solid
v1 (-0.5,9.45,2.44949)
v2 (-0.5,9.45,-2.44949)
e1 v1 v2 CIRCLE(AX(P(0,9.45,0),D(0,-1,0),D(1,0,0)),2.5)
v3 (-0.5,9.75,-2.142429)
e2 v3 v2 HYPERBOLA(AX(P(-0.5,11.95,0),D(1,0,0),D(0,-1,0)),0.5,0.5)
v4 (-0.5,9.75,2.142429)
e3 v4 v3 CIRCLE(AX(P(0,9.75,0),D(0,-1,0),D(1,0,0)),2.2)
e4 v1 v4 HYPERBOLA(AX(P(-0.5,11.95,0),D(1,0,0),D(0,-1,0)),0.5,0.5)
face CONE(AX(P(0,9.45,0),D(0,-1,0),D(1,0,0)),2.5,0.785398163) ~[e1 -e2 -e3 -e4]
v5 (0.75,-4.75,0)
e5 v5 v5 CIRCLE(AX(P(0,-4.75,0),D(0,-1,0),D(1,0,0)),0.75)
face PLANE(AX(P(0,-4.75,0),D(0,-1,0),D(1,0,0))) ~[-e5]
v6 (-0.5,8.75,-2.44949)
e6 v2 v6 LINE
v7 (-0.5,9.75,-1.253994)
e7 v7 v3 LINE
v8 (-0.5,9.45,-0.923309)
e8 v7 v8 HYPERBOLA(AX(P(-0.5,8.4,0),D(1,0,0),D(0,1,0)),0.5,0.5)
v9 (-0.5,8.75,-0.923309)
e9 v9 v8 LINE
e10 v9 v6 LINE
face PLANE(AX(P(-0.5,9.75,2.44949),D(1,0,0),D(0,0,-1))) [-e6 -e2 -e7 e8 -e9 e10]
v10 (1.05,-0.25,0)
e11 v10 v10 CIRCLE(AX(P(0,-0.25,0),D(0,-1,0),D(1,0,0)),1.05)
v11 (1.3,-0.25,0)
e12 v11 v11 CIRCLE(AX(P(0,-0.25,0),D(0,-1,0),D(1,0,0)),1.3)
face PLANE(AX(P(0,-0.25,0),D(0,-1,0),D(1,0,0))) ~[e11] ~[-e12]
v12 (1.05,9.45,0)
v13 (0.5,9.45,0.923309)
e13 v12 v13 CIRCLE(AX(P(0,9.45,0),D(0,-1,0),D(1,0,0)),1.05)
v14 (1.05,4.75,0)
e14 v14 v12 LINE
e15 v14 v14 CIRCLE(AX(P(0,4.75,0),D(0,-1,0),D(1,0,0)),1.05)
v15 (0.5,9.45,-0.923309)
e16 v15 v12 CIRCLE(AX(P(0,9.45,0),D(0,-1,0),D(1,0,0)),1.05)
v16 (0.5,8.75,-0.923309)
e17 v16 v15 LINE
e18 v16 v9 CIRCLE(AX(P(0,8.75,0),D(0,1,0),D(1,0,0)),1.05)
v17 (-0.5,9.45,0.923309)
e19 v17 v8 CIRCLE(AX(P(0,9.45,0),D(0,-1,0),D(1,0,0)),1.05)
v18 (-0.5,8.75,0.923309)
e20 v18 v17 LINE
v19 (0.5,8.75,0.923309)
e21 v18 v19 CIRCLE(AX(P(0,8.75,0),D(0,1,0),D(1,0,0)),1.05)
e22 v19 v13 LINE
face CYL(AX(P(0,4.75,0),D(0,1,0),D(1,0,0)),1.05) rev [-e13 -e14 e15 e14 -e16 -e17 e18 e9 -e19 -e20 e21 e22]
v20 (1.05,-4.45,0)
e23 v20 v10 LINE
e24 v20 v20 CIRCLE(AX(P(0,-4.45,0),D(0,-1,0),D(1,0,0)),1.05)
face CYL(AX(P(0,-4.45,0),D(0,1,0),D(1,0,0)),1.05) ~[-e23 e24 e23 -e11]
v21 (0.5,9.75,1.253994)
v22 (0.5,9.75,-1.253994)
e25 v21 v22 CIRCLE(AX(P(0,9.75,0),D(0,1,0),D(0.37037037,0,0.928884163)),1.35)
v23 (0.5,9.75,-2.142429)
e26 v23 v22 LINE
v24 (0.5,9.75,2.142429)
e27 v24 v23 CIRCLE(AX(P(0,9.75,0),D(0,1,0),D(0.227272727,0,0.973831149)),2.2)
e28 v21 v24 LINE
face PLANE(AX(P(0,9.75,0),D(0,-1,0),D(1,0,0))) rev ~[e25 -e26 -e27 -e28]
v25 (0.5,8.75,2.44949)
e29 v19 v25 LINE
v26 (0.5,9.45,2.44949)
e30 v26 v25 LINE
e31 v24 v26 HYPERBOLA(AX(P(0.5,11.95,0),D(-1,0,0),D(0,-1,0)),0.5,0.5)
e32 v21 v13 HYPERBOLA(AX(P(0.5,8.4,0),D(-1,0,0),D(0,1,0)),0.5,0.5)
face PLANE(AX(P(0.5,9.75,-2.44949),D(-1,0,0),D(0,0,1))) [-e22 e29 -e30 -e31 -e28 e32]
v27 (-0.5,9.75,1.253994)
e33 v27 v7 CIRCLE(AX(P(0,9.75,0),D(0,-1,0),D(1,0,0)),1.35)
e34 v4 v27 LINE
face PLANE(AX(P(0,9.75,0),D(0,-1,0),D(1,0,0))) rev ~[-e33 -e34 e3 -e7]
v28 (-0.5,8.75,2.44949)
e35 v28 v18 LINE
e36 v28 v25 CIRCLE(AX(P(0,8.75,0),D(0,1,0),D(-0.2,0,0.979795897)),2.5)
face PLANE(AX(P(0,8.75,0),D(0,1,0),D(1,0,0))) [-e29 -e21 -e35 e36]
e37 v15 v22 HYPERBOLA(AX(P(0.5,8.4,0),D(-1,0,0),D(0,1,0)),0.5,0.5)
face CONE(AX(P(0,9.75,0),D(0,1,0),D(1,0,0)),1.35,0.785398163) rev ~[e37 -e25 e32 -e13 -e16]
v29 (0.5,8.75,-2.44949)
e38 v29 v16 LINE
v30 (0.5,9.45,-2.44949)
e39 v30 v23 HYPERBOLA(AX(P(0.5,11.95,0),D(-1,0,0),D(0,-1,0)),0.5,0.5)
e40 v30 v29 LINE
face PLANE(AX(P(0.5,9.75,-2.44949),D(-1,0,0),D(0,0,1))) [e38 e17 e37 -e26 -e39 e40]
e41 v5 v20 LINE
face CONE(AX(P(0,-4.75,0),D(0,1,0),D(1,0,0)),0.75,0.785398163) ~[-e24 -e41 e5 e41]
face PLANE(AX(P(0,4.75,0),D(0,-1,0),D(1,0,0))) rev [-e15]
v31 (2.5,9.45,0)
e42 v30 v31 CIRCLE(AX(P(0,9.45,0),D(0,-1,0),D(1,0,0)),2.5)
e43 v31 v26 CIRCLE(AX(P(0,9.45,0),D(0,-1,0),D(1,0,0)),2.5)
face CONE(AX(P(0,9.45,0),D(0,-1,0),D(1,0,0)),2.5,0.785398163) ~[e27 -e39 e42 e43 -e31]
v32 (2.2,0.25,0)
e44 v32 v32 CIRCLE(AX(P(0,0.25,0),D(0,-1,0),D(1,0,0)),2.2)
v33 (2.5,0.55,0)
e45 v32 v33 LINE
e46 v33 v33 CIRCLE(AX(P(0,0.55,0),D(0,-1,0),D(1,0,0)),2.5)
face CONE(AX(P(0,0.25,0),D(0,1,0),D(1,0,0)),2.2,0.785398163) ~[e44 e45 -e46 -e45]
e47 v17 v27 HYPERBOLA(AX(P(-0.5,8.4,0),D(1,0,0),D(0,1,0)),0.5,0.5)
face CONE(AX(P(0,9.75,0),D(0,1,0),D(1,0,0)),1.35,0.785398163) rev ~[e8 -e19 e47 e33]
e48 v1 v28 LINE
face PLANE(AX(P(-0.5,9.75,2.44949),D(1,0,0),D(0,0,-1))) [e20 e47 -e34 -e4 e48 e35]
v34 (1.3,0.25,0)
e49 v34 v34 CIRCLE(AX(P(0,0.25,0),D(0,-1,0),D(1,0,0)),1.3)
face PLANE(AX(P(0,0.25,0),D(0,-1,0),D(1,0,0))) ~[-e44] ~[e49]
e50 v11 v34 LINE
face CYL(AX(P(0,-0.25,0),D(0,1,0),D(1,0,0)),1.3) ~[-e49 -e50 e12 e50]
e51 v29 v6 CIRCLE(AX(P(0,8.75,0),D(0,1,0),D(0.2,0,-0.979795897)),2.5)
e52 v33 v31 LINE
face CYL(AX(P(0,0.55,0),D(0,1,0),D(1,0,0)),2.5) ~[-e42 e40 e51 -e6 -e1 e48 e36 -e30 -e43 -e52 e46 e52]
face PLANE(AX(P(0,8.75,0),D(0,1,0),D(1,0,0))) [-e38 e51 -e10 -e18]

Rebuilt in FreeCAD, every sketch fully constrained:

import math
import FreeCAD as App
import Part
import Sketcher
Q = App.Units.Quantity


def add_polygon(sketch, points):
    """Adds a closed chain of lines whose ends are joined by coincident constraints."""
    first, n = sketch.GeometryCount, len(points)
    for a, b in zip(points, points[1:] + points[:1]):
        sketch.addGeometry(Part.LineSegment(App.Vector(*a, 0), App.Vector(*b, 0)), False)
    for i in range(n):
        sketch.addConstraint(Sketcher.Constraint("Coincident", first + i, 2, first + (i + 1) % n, 1))

doc = App.newDocument("Part")
body = doc.addObject("PartDesign::Body", "Body")

# Sketch on XY plane
sketch1 = body.newObject("Sketcher::SketchObject", "Sketch")
sketch1.AttachmentSupport = (doc.getObject("XY_Plane"), [""])
sketch1.MapMode = "FlatFace"
add_polygon(sketch1, [(0, 4.75), (0, -4.75), (0.75, -4.75), (1.05, -4.45), (1.05, -0.25), (1.3, -0.25), (1.3, 0.25), (2.2, 0.25), (2.5, 0.55), (2.5, 9.45), (2.2, 9.75), (1.35, 9.75), (1.05, 9.45), (1.05, 4.75)])  # lines 0-13
sketch1.addConstraint([
    Sketcher.Constraint("Vertical", 0),
    Sketcher.Constraint("Horizontal", 1),
    Sketcher.Constraint("Vertical", 3),
    Sketcher.Constraint("Horizontal", 4),
    Sketcher.Constraint("Vertical", 5),
    Sketcher.Constraint("Horizontal", 6),
    Sketcher.Constraint("Vertical", 8),
    Sketcher.Constraint("Horizontal", 10),
    Sketcher.Constraint("Vertical", 12),
    Sketcher.Constraint("Horizontal", 13),
    Sketcher.Constraint("Symmetric", 0, 2, 13, 2, -1, 1),
    Sketcher.Constraint("Parallel", 2, 7),
    Sketcher.Constraint("Perpendicular", 7, 9),
    Sketcher.Constraint("Perpendicular", 9, 11),
    Sketcher.Constraint("Horizontal", 8, 2, 11, 2),
    Sketcher.Constraint("Vertical", 6, 2, 9, 2),
    Sketcher.Constraint("Vertical", 3, 2, 11, 2),
    Sketcher.Constraint("Equal", 2, 7),
    Sketcher.Constraint("Equal", 7, 9),
    Sketcher.Constraint("DistanceY", 0, 2, 0, 1, Q("9.5 mm")),
    Sketcher.Constraint("DistanceY", 5, 1, 5, 2, Q("0.5 mm")),
    Sketcher.Constraint("DistanceY", 1, 2, 5, 2, Q("5 mm")),
    Sketcher.Constraint("DistanceX", 1, 2, 2, 2, Q("0.3 mm")),
    Sketcher.Constraint("DistanceY", 6, 2, 9, 2, Q("9.5 mm")),
    Sketcher.Constraint("DistanceX", 6, 1, 6, 2, Q("0.9 mm")),
    Sketcher.Constraint("DistanceX", 1, 1, 1, 2, Q("0.75 mm")),
    Sketcher.Constraint("DistanceX", 4, 1, 4, 2, Q("0.25 mm")),
])
revolution = body.newObject("PartDesign::Revolution", "Revolution")
revolution.Profile = sketch1
revolution.ReferenceAxis = (sketch1, ["V_Axis"])
revolution.Angle = 360

# Sketch on XZ plane
sketch2 = body.newObject("Sketcher::SketchObject", "Sketch001")
sketch2.AttachmentSupport = (doc.getObject("XZ_Plane"), [""])
sketch2.MapMode = "FlatFace"
sketch2.AttachmentOffset = App.Placement(App.Vector(0, 0, -9.75), App.Rotation())
sketch2.addGeometry([
    Part.ArcOfCircle(Part.Circle(App.Vector(0, 0, 0), App.Vector(0, 0, 1), 2.5), math.radians(-102), math.radians(-78)),
    Part.LineSegment(App.Vector(-0.5, -2.4, 0), App.Vector(-0.5, 2.4, 0)),
    Part.ArcOfCircle(Part.Circle(App.Vector(0, 0, 0), App.Vector(0, 0, 1), 2.5), math.radians(78), math.radians(102)),
    Part.LineSegment(App.Vector(0.5, 2.4, 0), App.Vector(0.5, -2.4, 0)),
], False)
sketch2.addConstraint([
    Sketcher.Constraint("Coincident", 0, 1, 1, 1),
    Sketcher.Constraint("Coincident", 1, 2, 2, 2),
    Sketcher.Constraint("Coincident", 2, 1, 3, 1),
    Sketcher.Constraint("Coincident", 3, 2, 0, 2),
    Sketcher.Constraint("Vertical", 1),
    Sketcher.Constraint("Vertical", 3),
    Sketcher.Constraint("Coincident", 0, 3, -1, 1),
    Sketcher.Constraint("Coincident", 2, 3, -1, 1),
    Sketcher.Constraint("Equal", 0, 2),
    Sketcher.Constraint("Horizontal", 1, 2, 2, 1),
    Sketcher.Constraint("DistanceX", 1, 2, 2, 1, Q("1 mm")),
    Sketcher.Constraint("Radius", 0, Q("2.5 mm")),
])
pocket1 = body.newObject("PartDesign::Pocket", "Pocket")
pocket1.Profile = sketch2
pocket1.Length = 1
pocket1.Reversed = True

doc.recompute()
